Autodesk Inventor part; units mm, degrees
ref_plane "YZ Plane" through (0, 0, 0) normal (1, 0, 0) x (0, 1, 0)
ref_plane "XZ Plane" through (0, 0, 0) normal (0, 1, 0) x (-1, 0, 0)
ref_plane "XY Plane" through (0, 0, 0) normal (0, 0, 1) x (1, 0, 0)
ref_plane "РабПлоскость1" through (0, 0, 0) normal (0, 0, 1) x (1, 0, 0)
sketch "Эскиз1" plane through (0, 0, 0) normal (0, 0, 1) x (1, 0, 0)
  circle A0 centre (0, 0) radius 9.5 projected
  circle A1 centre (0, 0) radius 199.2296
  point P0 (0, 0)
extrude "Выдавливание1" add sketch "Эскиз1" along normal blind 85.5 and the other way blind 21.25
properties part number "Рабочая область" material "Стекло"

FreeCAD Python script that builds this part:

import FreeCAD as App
import Part
import Sketcher

doc = App.newDocument("Part")
body = doc.addObject("PartDesign::Body", "Body")

sketch1 = body.newObject("Sketcher::SketchObject", "Sketch")
sketch1.AttachmentSupport = (doc.getObject("XY_Plane"), [""])
sketch1.MapMode = "FlatFace"
sketch1.addGeometry([
    Part.Circle(App.Vector(0, 0, 0), App.Vector(0, 0, 1), 199),
    Part.Circle(App.Vector(0, 0, 0), App.Vector(0, 0, 1), 10),
], False)
sketch1.addConstraint([
    Sketcher.Constraint("Coincident", 0, 3, -1, 1),
    Sketcher.Constraint("Coincident", 1, 3, -1, 1),
    Sketcher.Constraint("Diameter", 1, 19.0),
    Sketcher.Constraint("Diameter", 0, 398.4592),
])
pad1 = body.newObject("PartDesign::Pad", "Pad")
pad1.Profile = sketch1
pad1.Type = "TwoLengths"
pad1.Length = 85.5
pad1.Length2 = 21.25

doc.recompute()
